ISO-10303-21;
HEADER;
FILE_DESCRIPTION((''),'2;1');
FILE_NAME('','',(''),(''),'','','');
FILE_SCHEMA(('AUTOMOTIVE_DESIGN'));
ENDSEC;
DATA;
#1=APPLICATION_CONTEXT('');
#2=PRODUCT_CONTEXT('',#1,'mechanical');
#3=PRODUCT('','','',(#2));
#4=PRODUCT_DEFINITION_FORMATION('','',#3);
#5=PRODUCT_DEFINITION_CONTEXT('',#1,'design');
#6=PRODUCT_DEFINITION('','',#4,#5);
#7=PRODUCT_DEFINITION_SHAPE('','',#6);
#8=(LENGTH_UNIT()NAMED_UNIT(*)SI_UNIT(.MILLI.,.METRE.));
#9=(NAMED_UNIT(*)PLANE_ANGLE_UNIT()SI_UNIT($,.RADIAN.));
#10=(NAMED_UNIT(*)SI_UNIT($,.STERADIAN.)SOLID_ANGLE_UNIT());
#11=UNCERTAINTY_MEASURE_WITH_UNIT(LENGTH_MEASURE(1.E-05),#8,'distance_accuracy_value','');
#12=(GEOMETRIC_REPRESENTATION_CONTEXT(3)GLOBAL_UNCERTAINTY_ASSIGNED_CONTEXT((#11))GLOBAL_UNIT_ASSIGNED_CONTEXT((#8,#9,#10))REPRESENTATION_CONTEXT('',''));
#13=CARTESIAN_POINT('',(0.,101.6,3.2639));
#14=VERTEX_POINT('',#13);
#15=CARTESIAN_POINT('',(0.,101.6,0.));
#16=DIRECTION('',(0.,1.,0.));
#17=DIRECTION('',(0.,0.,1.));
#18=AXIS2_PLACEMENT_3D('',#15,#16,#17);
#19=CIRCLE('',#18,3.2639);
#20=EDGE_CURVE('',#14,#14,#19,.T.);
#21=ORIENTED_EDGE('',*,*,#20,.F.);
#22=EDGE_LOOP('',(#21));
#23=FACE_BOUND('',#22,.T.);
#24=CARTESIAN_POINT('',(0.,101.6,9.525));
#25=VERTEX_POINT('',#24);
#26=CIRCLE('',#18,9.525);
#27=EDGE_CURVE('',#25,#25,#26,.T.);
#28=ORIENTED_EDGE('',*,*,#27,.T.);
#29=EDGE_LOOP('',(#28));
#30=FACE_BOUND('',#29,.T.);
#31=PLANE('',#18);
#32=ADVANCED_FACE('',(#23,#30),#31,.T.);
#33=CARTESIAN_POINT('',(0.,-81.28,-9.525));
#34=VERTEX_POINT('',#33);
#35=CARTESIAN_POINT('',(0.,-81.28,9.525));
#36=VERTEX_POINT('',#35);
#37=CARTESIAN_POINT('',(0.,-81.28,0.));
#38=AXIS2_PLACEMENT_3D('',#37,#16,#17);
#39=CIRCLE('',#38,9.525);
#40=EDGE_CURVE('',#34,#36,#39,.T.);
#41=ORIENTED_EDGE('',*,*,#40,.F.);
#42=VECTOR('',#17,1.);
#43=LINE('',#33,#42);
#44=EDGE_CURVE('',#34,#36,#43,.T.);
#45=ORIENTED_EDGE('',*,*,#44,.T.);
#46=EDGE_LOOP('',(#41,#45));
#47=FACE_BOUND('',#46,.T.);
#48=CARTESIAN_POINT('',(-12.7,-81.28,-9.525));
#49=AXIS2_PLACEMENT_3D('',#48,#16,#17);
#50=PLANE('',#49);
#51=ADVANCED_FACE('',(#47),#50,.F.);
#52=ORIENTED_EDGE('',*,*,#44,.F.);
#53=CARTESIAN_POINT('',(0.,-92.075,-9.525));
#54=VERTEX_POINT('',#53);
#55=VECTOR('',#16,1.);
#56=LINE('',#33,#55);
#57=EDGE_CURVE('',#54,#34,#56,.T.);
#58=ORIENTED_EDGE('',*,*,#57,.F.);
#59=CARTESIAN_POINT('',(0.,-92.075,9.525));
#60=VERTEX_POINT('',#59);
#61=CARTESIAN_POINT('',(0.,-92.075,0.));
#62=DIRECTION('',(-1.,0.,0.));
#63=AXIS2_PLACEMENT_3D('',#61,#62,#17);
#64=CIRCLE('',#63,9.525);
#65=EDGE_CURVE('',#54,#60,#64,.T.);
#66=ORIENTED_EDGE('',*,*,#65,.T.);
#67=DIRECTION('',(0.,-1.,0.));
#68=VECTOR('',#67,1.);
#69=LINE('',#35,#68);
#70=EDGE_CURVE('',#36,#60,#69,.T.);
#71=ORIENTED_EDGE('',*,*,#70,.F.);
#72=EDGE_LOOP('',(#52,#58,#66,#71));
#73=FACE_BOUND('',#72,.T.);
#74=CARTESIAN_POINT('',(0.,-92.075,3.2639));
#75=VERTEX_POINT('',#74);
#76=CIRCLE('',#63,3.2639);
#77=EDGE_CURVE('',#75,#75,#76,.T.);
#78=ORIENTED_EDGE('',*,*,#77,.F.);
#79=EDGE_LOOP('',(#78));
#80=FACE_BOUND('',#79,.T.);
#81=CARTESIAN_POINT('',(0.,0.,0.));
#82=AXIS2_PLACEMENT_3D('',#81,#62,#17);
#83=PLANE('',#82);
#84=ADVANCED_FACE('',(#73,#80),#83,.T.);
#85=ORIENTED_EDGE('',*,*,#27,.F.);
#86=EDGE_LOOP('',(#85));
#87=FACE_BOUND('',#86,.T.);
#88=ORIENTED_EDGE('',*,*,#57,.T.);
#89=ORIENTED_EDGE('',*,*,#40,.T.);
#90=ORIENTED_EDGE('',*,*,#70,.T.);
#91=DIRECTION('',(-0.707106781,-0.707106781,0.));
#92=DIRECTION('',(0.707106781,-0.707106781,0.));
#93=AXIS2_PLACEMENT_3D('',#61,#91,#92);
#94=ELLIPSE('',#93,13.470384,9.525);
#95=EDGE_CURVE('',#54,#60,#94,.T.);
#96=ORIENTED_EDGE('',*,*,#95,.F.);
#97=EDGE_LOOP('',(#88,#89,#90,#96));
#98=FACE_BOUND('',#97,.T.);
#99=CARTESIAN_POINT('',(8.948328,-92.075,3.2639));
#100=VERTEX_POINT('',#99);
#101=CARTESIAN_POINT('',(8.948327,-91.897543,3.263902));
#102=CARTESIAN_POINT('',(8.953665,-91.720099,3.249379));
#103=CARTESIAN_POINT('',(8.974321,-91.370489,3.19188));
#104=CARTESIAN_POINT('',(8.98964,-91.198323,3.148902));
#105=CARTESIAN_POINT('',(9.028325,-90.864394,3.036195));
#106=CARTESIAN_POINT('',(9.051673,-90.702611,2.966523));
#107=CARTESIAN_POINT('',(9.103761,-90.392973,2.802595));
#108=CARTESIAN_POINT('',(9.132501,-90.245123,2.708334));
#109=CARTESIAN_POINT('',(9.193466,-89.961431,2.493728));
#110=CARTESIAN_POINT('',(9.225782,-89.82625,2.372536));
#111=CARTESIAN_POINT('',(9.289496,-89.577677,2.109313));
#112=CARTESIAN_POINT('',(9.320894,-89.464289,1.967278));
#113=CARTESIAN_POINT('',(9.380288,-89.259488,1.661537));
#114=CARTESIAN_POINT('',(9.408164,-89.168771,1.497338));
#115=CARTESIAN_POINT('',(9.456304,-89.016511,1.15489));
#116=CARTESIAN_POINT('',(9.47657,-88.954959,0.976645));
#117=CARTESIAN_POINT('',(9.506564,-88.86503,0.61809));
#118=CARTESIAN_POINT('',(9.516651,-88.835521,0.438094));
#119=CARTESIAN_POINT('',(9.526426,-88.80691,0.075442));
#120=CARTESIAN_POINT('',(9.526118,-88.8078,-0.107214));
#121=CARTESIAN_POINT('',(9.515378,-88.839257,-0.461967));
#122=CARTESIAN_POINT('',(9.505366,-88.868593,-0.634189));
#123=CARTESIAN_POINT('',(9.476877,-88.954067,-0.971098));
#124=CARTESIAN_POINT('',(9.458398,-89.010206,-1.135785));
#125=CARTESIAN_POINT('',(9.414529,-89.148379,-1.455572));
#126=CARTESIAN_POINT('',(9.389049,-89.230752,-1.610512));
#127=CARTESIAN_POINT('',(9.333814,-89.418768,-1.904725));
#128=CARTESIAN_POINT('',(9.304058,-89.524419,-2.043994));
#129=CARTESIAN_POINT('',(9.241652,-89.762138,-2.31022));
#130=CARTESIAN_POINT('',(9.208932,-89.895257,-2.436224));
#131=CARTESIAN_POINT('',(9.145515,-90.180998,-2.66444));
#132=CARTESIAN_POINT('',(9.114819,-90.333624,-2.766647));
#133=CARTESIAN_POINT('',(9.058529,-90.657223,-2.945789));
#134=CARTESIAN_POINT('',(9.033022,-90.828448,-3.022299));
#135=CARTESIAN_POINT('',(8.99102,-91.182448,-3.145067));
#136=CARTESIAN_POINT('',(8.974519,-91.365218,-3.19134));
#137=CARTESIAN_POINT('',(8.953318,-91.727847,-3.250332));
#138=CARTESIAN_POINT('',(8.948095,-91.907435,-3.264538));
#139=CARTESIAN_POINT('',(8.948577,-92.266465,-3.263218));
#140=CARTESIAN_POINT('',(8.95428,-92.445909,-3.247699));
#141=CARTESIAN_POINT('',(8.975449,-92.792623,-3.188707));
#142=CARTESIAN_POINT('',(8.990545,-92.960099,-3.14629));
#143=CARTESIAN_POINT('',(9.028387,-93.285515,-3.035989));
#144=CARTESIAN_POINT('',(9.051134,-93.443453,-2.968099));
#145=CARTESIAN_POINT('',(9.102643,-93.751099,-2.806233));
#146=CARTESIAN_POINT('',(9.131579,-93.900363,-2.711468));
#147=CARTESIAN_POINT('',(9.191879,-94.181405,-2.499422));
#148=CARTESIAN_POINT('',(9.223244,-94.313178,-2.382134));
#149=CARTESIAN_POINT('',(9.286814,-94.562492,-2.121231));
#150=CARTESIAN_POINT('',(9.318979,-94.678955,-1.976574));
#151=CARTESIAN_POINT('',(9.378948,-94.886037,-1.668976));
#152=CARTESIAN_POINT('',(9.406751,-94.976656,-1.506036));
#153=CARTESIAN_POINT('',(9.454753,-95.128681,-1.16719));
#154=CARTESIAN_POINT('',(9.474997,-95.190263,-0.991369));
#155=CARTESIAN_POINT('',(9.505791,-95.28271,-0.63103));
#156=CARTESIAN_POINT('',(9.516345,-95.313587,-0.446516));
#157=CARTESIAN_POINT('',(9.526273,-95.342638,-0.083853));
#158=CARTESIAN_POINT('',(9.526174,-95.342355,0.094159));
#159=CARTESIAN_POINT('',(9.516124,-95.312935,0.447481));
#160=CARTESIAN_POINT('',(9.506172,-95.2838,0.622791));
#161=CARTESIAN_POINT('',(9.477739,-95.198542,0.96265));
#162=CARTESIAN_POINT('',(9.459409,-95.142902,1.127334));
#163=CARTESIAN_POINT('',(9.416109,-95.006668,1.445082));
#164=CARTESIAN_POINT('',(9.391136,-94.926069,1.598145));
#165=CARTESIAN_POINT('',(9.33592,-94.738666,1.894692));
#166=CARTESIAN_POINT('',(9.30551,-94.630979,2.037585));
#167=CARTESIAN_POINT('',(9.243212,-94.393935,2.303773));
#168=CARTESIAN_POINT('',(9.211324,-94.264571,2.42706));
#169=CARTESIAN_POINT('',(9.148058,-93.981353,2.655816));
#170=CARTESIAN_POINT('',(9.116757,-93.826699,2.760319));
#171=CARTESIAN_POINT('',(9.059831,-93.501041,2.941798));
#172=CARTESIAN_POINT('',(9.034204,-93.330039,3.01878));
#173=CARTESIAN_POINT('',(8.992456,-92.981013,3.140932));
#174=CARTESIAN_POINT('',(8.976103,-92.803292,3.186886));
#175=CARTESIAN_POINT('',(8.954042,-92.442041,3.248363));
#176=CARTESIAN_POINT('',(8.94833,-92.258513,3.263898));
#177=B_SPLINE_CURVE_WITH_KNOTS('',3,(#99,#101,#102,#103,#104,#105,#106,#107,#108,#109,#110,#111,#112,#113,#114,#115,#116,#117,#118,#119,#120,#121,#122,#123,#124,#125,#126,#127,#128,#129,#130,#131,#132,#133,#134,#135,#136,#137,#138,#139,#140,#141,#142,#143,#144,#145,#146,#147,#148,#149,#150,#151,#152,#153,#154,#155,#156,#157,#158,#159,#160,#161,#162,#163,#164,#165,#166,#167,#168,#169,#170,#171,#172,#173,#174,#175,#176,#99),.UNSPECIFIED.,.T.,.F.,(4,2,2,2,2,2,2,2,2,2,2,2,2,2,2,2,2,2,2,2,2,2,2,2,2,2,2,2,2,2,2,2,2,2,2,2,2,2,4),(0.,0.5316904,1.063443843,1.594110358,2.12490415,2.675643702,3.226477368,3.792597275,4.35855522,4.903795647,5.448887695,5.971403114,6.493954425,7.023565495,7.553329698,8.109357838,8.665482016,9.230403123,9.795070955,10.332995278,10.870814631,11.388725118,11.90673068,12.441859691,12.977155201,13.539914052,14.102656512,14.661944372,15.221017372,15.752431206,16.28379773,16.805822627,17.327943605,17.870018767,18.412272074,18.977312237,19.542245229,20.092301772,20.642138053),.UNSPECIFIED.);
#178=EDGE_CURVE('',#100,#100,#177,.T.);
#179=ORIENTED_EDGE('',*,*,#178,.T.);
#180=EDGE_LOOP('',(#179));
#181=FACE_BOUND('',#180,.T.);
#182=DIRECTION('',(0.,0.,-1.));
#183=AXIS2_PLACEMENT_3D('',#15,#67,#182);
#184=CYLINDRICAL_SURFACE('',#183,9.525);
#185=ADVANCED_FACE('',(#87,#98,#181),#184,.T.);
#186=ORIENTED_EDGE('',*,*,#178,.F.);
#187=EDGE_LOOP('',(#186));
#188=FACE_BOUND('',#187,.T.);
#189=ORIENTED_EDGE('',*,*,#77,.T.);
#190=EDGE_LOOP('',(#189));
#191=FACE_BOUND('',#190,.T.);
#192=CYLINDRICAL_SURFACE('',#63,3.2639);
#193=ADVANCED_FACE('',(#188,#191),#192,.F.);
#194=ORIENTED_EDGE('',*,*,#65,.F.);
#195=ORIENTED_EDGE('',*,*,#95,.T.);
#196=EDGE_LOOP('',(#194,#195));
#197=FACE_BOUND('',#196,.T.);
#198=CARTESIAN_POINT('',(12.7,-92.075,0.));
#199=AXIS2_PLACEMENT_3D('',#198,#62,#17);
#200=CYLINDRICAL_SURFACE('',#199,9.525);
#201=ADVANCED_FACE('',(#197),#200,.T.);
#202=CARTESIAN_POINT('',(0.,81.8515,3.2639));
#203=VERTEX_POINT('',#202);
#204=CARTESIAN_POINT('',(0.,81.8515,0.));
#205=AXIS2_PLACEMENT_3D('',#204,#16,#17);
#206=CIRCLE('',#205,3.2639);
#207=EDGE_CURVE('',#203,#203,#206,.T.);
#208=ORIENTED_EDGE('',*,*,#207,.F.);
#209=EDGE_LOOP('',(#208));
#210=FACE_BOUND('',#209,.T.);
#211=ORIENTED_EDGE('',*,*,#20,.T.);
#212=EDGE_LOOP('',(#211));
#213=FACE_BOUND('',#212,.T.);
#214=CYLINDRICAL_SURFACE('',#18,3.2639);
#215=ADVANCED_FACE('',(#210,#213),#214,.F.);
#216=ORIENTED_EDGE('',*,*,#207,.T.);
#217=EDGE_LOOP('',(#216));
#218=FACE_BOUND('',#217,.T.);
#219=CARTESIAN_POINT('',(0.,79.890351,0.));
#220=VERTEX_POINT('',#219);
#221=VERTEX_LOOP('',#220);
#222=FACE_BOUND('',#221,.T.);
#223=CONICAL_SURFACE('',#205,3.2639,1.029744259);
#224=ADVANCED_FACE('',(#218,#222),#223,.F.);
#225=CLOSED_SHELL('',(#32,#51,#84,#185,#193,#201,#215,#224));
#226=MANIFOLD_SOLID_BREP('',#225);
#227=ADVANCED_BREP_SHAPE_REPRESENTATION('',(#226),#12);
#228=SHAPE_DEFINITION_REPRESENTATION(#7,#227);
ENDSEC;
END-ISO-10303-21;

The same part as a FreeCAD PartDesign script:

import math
import FreeCAD as App
import Part
import Sketcher
from FreeCAD import Vector
Q = App.Units.Quantity

doc = App.newDocument("Part")
body = doc.addObject("PartDesign::Body", "Body")

# Sketch on XZ plane
sketch1 = body.newObject("Sketcher::SketchObject", "Sketch")
sketch1.AttachmentSupport = (doc.getObject("XZ_Plane"), [""])
sketch1.MapMode = "FlatFace"
sketch1.addGeometry(Part.Circle(Vector(0, 0, 0), Vector(0, 0, 1), 10), False)
sketch1.addConstraint([
    Sketcher.Constraint("Coincident", 0, 3, -1, 1),
    Sketcher.Constraint("Diameter", 0, Q("0.75 in")),
])
pad1 = body.newObject("PartDesign::Pad", "Pad")
pad1.Profile = sketch1
pad1.Length = Q("8 in")
pad1.Midplane = True

# Sketch on YZ plane
sketch2 = body.newObject("Sketcher::SketchObject", "Sketch001")
sketch2.AttachmentSupport = (doc.getObject("YZ_Plane"), [""])
sketch2.MapMode = "FlatFace"
sketch2.addGeometry([
    Part.LineSegment(Vector(-81, 10, 0), Vector(-102, 10, 0)),
    Part.LineSegment(Vector(-102, 10, 0), Vector(-102, -10, 0)),
    Part.LineSegment(Vector(-102, -10, 0), Vector(-81, -10, 0)),
    Part.LineSegment(Vector(-81, -10, 0), Vector(-81, 10, 0)),
], False)
sketch2.addConstraint([
    Sketcher.Constraint("Coincident", 0, 2, 1, 1),
    Sketcher.Constraint("Coincident", 1, 2, 2, 1),
    Sketcher.Constraint("Coincident", 2, 2, 3, 1),
    Sketcher.Constraint("Coincident", 3, 2, 0, 1),
    Sketcher.Constraint("Horizontal", 0),
    Sketcher.Constraint("Vertical", 1),
    Sketcher.Constraint("Horizontal", 2),
    Sketcher.Constraint("Vertical", 3),
    Sketcher.Constraint("DistanceX", 0, 2, 0, 1, Q("0.8 in")),
    Sketcher.Constraint("DistanceX", 0, 2, -1, 1, Q("4 in")),
    Sketcher.Constraint("DistanceY", 1, 2, 1, 1, Q("0.75 in")),
    Sketcher.Constraint("DistanceY", -1, 1, 0, 2, Q("0.375 in")),
])
pocket1 = body.newObject("PartDesign::Pocket", "Pocket")
pocket1.Profile = sketch2
pocket1.Length = Q("0.5 in")

# Sketch on YZ plane
sketch3 = body.newObject("Sketcher::SketchObject", "Sketch002")
sketch3.AttachmentSupport = (doc.getObject("YZ_Plane"), [""])
sketch3.MapMode = "FlatFace"
sketch3.addGeometry([
    Part.ArcOfCircle(Part.Circle(Vector(-92, 0, 0), Vector(0, 0, 1), 10), math.radians(180), math.radians(270)),  # 0
    Part.LineSegment(Vector(-92, -10, 0), Vector(-102, -10, 0)),  # 1
    Part.LineSegment(Vector(-102, -10, 0), Vector(-102, 0, 0)),  # 2
    Part.ArcOfCircle(Part.Circle(Vector(-92, 0, 0), Vector(0, 0, 1), 10), math.radians(90), math.radians(180)),  # 3
    Part.LineSegment(Vector(-102, 0, 0), Vector(-102, 10, 0)),  # 4
    Part.LineSegment(Vector(-102, 10, 0), Vector(-92, 10, 0)),  # 5
], False)
sketch3.addConstraint([
    Sketcher.Constraint("Tangent", 0, 2, 1, 1),
    Sketcher.Constraint("Coincident", 1, 2, 2, 1),
    Sketcher.Constraint("Tangent", 2, 2, 0, 1),
    Sketcher.Constraint("Tangent", 3, 2, 4, 1),
    Sketcher.Constraint("Coincident", 4, 2, 5, 1),
    Sketcher.Constraint("Tangent", 5, 2, 3, 1),
    Sketcher.Constraint("Horizontal", 1),
    Sketcher.Constraint("Vertical", 2),
    Sketcher.Constraint("Vertical", 4),
    Sketcher.Constraint("Horizontal", 5),
    Sketcher.Constraint("Coincident", 3, 3, 0, 3),
    Sketcher.Constraint("Equal", 0, 3),
    Sketcher.Constraint("PointOnObject", 0, 3, -1),
    Sketcher.Constraint("DistanceX", 1, 2, -1, 1, Q("4 in")),
    Sketcher.Constraint("Radius", 0, Q("0.375 in")),
])
pocket2 = body.newObject("PartDesign::Pocket", "Pocket001")
pocket2.Profile = sketch3
pocket2.Length = Q("0.5 in")
pocket2.Reversed = True

# Sketch on YZ plane
sketch4 = body.newObject("Sketcher::SketchObject", "Sketch003")
sketch4.AttachmentSupport = (doc.getObject("YZ_Plane"), [""])
sketch4.MapMode = "FlatFace"
sketch4.addGeometry(Part.Circle(Vector(-92.1, 0, 0), Vector(0, 0, 1), 3.3), False)
sketch4.addConstraint([
    Sketcher.Constraint("PointOnObject", 0, 3, -1),
    Sketcher.Constraint("Diameter", 0, Q("0.257 in")),
    Sketcher.Constraint("DistanceX", 0, 3, -1, 1, Q("3.625 in")),
])
doc.recompute()
hole = body.newObject("PartDesign::Hole", "Hole")
hole.Profile = sketch4
hole.ThreadType = "None"
hole.Diameter = Q("0.257 in")
hole.DepthType = "Dimension"
hole.Depth = Q("0.9025 in")
hole.DrillPoint = "Angled"
hole.DrillPointAngle = 118
hole.Reversed = True

# Sketch on XZ plane
sketch5 = body.newObject("Sketcher::SketchObject", "Sketch004")
sketch5.AttachmentSupport = (doc.getObject("XZ_Plane"), [""])
sketch5.MapMode = "FlatFace"
sketch5.AttachmentOffset = App.Placement(Vector(0, 0, -4 * 25.4), App.Rotation())
sketch5.addGeometry(Part.Circle(Vector(0, 0, 0), Vector(0, 0, 1), 3.3), False)
sketch5.addConstraint([
    Sketcher.Constraint("Coincident", 0, 3, -1, 1),
    Sketcher.Constraint("Diameter", 0, Q("0.257 in")),
])
doc.recompute()
hole2 = body.newObject("PartDesign::Hole", "Hole001")
hole2.Profile = sketch5
hole2.ThreadType = "None"
hole2.Diameter = Q("0.257 in")
hole2.DepthType = "Dimension"
hole2.Depth = Q("0.7775 in")
hole2.DrillPoint = "Angled"
hole2.DrillPointAngle = 118
hole2.Reversed = True

doc.recompute()
